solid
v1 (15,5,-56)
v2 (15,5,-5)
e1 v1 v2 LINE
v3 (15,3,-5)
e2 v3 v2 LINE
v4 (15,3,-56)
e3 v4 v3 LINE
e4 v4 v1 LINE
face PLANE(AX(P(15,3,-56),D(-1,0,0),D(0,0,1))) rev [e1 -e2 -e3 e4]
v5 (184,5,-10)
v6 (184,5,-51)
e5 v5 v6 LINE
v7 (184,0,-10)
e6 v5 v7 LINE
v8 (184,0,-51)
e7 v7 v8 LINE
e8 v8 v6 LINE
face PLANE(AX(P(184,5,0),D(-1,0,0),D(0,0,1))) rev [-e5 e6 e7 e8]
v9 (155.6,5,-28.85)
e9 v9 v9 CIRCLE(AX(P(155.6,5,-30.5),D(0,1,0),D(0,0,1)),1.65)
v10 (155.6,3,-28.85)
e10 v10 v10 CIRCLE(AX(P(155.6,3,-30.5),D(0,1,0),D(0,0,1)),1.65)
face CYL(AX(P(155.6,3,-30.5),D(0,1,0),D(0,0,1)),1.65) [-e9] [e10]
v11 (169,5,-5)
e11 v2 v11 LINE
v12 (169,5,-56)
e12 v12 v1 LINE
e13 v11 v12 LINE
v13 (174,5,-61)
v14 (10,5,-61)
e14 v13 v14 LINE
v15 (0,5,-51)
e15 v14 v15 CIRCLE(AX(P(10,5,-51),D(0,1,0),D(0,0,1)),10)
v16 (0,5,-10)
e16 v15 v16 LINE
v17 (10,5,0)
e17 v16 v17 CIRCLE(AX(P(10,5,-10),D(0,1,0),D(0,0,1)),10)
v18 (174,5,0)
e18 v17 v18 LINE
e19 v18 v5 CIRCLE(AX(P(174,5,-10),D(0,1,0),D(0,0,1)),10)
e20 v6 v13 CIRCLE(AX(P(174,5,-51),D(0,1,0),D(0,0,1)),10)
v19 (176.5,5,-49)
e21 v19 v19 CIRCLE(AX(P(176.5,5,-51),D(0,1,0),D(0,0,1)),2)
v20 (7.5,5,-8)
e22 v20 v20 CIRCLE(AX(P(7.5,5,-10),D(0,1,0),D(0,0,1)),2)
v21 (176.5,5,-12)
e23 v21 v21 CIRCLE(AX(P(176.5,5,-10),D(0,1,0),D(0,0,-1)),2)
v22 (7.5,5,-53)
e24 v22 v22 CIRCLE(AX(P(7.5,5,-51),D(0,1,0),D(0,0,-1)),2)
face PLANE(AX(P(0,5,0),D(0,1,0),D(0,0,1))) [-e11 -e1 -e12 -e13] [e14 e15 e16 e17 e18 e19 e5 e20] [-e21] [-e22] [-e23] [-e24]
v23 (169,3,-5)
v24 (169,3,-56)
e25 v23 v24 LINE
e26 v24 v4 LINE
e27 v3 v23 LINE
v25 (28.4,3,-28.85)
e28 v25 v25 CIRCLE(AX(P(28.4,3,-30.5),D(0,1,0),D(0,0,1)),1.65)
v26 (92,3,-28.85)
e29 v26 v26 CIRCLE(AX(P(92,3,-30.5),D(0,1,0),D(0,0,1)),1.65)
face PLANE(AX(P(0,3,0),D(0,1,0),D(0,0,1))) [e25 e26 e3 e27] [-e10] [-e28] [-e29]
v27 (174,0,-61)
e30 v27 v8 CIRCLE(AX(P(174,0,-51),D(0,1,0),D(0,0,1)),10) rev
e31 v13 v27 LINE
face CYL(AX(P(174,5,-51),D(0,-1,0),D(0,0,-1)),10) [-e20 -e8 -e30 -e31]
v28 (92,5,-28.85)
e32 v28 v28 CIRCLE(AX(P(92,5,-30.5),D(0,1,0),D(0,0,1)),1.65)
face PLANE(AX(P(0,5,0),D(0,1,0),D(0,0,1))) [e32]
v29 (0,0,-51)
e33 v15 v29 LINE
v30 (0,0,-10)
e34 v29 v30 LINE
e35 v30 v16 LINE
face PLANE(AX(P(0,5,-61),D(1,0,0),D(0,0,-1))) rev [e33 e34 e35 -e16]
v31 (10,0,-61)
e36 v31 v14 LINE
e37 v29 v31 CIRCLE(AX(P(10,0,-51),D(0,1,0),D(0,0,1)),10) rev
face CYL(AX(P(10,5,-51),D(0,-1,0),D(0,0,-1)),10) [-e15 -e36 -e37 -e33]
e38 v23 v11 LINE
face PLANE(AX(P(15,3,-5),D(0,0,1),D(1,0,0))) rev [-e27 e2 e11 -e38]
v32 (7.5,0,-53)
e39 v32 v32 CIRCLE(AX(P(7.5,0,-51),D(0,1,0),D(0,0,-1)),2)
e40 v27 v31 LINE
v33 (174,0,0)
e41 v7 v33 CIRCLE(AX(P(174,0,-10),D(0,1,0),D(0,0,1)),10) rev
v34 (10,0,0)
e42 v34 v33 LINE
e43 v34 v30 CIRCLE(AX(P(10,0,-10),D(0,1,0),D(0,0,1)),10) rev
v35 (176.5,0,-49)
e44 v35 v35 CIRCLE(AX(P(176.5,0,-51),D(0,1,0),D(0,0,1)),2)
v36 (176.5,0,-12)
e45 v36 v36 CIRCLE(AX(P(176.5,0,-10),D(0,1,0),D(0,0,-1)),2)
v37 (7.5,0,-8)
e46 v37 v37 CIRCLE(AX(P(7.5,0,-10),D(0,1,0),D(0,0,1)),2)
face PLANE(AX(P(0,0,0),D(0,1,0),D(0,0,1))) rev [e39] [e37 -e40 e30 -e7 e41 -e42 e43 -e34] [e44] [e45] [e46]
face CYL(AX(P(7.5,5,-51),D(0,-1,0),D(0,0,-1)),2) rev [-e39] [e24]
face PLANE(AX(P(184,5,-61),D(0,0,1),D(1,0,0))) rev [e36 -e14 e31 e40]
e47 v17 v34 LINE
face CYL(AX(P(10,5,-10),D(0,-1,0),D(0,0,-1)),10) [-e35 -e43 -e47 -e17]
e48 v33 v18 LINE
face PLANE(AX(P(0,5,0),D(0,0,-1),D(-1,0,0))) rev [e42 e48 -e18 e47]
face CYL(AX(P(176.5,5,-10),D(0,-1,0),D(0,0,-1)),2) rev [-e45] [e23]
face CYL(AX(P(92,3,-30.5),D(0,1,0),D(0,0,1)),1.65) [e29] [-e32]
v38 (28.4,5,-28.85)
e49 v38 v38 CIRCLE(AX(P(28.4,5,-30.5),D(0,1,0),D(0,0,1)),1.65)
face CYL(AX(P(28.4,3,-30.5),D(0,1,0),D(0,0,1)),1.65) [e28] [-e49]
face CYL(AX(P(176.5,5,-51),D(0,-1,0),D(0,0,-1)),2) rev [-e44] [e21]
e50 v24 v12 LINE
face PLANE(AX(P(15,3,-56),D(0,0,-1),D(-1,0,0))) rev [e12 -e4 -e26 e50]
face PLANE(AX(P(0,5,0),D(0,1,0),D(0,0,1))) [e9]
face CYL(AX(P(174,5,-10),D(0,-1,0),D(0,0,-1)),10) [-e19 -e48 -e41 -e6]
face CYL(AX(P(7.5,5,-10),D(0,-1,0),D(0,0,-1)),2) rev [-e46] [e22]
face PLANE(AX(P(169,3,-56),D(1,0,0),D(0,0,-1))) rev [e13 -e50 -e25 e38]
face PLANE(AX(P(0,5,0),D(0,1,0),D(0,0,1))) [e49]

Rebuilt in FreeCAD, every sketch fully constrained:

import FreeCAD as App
import Part
import Sketcher
from FreeCAD import Vector


def edges_at(feature, points):
    """Names of the edges that pass closest to the given points."""
    edges = feature.Shape.Edges
    near = lambda p: min(range(len(edges)), key=lambda i: edges[i].distToShape(Part.Vertex(*p))[0])
    return sorted({f"Edge{near(p) + 1}" for p in points})


def add_polygon(sketch, points):
    """Adds a closed chain of lines whose ends are joined by coincident constraints."""
    first, n = sketch.GeometryCount, len(points)
    for a, b in zip(points, points[1:] + points[:1]):
        sketch.addGeometry(Part.LineSegment(App.Vector(*a, 0), App.Vector(*b, 0)), False)
    for i in range(n):
        sketch.addConstraint(Sketcher.Constraint("Coincident", first + i, 2, first + (i + 1) % n, 1))

doc = App.newDocument("Part")
body = doc.addObject("PartDesign::Body", "Body")

# Sketch on XZ plane
sketch1 = doc.addObject("Sketcher::SketchObject", "Sketch")
body.addObject(sketch1)
sketch1.AttachmentSupport = (doc.XZ_Plane, [""])
sketch1.MapMode = "FlatFace"
add_polygon(sketch1, [(0, -61), (0, 0), (184, 0), (184, -61)])  # lines 0-3
sketch1.addGeometry(Part.Circle(Vector(7.5, -10, 0), Vector(0, 0, 1), 2), False)  # 4
sketch1.addGeometry(Part.Circle(Vector(176.5, -10, 0), Vector(0, 0, 1), 2), False)  # 5
sketch1.addGeometry(Part.Circle(Vector(7.5, -51, 0), Vector(0, 0, 1), 2), False)  # 6
sketch1.addGeometry(Part.Circle(Vector(176.5, -51, 0), Vector(0, 0, 1), 2), False)  # 7
sketch1.addConstraint([
    Sketcher.Constraint("Vertical", 0),
    Sketcher.Constraint("Horizontal", 1),
    Sketcher.Constraint("Vertical", 2),
    Sketcher.Constraint("Horizontal", 3),
    Sketcher.Constraint("Coincident", 0, 2, -1, 1),
    Sketcher.Constraint("Equal", 4, 5),
    Sketcher.Constraint("Equal", 5, 6),
    Sketcher.Constraint("Equal", 6, 7),
    Sketcher.Constraint("Horizontal", 4, 3, 5, 3),
    Sketcher.Constraint("Horizontal", 6, 3, 7, 3),
    Sketcher.Constraint("Vertical", 4, 3, 6, 3),
    Sketcher.Constraint("Vertical", 5, 3, 7, 3),
    Sketcher.Constraint("Diameter", 4, 4.0),
    Sketcher.Constraint("DistanceX", 1, 1, 1, 2, 184.0),
    Sketcher.Constraint("DistanceY", 0, 1, 0, 2, 61.0),
    Sketcher.Constraint("DistanceY", 4, 3, -1, 1, 10.0),
    Sketcher.Constraint("DistanceY", 6, 3, -1, 1, 51.0),
    Sketcher.Constraint("DistanceX", 4, 3, 5, 3, 169.0),
    Sketcher.Constraint("DistanceX", -1, 1, 4, 3, 7.5),
])
pad1 = doc.addObject("PartDesign::Pad", "Pad")
body.addObject(pad1)
pad1.Profile = sketch1
pad1.Length = 5
pad1.Reversed = True

# Sketch on XZ plane
sketch2 = doc.addObject("Sketcher::SketchObject", "Sketch001")
body.addObject(sketch2)
sketch2.AttachmentSupport = (doc.XZ_Plane, [""])
sketch2.MapMode = "FlatFace"
sketch2.AttachmentOffset = App.Placement(Vector(0, 0, -5), App.Rotation())
add_polygon(sketch2, [(15, -56), (15, -5), (169, -5), (169, -56)])  # lines 0-3
sketch2.addGeometry(Part.Circle(Vector(28.4, -30.5, 0), Vector(0, 0, 1), 1.6), False)  # 4
sketch2.addGeometry(Part.Circle(Vector(92, -30.5, 0), Vector(0, 0, 1), 1.6), False)  # 5
sketch2.addGeometry(Part.Circle(Vector(155.6, -30.5, 0), Vector(0, 0, 1), 1.6), False)  # 6
sketch2.addConstraint([
    Sketcher.Constraint("Vertical", 0),
    Sketcher.Constraint("Horizontal", 1),
    Sketcher.Constraint("Vertical", 2),
    Sketcher.Constraint("Horizontal", 3),
    Sketcher.Constraint("Equal", 4, 5),
    Sketcher.Constraint("Equal", 5, 6),
    Sketcher.Constraint("Horizontal", 4, 3, 5, 3),
    Sketcher.Constraint("Horizontal", 5, 3, 6, 3),
    Sketcher.Constraint("Diameter", 4, 3.3),
    Sketcher.Constraint("DistanceX", 1, 1, 1, 2, 154.0),
    Sketcher.Constraint("DistanceY", 0, 1, 0, 2, 51.0),
    Sketcher.Constraint("DistanceX", -1, 1, 5, 3, 92.0),
    Sketcher.Constraint("DistanceX", -1, 1, 0, 2, 15.0),
    Sketcher.Constraint("DistanceY", 0, 2, -1, 1, 5.0),
    Sketcher.Constraint("DistanceX", -1, 1, 4, 3, 28.4),
    Sketcher.Constraint("DistanceY", 4, 3, -1, 1, 30.5),
    Sketcher.Constraint("DistanceX", -1, 1, 6, 3, 155.6),
])
pocket1 = doc.addObject("PartDesign::Pocket", "Pocket")
body.addObject(pocket1)
pocket1.Profile = sketch2
pocket1.Length = 2
pocket1.Reversed = True
doc.recompute()

fillet = doc.addObject("PartDesign::Fillet", "Fillet")
body.addObject(fillet)
fillet.Base = (pocket1, edges_at(pocket1, [
    (0, 2.5, -61),
    (184, 2.5, -61),
    (184, 2.5, 0),
    (0, 2.5, 0),
]))
fillet.Radius = 10

doc.recompute()
